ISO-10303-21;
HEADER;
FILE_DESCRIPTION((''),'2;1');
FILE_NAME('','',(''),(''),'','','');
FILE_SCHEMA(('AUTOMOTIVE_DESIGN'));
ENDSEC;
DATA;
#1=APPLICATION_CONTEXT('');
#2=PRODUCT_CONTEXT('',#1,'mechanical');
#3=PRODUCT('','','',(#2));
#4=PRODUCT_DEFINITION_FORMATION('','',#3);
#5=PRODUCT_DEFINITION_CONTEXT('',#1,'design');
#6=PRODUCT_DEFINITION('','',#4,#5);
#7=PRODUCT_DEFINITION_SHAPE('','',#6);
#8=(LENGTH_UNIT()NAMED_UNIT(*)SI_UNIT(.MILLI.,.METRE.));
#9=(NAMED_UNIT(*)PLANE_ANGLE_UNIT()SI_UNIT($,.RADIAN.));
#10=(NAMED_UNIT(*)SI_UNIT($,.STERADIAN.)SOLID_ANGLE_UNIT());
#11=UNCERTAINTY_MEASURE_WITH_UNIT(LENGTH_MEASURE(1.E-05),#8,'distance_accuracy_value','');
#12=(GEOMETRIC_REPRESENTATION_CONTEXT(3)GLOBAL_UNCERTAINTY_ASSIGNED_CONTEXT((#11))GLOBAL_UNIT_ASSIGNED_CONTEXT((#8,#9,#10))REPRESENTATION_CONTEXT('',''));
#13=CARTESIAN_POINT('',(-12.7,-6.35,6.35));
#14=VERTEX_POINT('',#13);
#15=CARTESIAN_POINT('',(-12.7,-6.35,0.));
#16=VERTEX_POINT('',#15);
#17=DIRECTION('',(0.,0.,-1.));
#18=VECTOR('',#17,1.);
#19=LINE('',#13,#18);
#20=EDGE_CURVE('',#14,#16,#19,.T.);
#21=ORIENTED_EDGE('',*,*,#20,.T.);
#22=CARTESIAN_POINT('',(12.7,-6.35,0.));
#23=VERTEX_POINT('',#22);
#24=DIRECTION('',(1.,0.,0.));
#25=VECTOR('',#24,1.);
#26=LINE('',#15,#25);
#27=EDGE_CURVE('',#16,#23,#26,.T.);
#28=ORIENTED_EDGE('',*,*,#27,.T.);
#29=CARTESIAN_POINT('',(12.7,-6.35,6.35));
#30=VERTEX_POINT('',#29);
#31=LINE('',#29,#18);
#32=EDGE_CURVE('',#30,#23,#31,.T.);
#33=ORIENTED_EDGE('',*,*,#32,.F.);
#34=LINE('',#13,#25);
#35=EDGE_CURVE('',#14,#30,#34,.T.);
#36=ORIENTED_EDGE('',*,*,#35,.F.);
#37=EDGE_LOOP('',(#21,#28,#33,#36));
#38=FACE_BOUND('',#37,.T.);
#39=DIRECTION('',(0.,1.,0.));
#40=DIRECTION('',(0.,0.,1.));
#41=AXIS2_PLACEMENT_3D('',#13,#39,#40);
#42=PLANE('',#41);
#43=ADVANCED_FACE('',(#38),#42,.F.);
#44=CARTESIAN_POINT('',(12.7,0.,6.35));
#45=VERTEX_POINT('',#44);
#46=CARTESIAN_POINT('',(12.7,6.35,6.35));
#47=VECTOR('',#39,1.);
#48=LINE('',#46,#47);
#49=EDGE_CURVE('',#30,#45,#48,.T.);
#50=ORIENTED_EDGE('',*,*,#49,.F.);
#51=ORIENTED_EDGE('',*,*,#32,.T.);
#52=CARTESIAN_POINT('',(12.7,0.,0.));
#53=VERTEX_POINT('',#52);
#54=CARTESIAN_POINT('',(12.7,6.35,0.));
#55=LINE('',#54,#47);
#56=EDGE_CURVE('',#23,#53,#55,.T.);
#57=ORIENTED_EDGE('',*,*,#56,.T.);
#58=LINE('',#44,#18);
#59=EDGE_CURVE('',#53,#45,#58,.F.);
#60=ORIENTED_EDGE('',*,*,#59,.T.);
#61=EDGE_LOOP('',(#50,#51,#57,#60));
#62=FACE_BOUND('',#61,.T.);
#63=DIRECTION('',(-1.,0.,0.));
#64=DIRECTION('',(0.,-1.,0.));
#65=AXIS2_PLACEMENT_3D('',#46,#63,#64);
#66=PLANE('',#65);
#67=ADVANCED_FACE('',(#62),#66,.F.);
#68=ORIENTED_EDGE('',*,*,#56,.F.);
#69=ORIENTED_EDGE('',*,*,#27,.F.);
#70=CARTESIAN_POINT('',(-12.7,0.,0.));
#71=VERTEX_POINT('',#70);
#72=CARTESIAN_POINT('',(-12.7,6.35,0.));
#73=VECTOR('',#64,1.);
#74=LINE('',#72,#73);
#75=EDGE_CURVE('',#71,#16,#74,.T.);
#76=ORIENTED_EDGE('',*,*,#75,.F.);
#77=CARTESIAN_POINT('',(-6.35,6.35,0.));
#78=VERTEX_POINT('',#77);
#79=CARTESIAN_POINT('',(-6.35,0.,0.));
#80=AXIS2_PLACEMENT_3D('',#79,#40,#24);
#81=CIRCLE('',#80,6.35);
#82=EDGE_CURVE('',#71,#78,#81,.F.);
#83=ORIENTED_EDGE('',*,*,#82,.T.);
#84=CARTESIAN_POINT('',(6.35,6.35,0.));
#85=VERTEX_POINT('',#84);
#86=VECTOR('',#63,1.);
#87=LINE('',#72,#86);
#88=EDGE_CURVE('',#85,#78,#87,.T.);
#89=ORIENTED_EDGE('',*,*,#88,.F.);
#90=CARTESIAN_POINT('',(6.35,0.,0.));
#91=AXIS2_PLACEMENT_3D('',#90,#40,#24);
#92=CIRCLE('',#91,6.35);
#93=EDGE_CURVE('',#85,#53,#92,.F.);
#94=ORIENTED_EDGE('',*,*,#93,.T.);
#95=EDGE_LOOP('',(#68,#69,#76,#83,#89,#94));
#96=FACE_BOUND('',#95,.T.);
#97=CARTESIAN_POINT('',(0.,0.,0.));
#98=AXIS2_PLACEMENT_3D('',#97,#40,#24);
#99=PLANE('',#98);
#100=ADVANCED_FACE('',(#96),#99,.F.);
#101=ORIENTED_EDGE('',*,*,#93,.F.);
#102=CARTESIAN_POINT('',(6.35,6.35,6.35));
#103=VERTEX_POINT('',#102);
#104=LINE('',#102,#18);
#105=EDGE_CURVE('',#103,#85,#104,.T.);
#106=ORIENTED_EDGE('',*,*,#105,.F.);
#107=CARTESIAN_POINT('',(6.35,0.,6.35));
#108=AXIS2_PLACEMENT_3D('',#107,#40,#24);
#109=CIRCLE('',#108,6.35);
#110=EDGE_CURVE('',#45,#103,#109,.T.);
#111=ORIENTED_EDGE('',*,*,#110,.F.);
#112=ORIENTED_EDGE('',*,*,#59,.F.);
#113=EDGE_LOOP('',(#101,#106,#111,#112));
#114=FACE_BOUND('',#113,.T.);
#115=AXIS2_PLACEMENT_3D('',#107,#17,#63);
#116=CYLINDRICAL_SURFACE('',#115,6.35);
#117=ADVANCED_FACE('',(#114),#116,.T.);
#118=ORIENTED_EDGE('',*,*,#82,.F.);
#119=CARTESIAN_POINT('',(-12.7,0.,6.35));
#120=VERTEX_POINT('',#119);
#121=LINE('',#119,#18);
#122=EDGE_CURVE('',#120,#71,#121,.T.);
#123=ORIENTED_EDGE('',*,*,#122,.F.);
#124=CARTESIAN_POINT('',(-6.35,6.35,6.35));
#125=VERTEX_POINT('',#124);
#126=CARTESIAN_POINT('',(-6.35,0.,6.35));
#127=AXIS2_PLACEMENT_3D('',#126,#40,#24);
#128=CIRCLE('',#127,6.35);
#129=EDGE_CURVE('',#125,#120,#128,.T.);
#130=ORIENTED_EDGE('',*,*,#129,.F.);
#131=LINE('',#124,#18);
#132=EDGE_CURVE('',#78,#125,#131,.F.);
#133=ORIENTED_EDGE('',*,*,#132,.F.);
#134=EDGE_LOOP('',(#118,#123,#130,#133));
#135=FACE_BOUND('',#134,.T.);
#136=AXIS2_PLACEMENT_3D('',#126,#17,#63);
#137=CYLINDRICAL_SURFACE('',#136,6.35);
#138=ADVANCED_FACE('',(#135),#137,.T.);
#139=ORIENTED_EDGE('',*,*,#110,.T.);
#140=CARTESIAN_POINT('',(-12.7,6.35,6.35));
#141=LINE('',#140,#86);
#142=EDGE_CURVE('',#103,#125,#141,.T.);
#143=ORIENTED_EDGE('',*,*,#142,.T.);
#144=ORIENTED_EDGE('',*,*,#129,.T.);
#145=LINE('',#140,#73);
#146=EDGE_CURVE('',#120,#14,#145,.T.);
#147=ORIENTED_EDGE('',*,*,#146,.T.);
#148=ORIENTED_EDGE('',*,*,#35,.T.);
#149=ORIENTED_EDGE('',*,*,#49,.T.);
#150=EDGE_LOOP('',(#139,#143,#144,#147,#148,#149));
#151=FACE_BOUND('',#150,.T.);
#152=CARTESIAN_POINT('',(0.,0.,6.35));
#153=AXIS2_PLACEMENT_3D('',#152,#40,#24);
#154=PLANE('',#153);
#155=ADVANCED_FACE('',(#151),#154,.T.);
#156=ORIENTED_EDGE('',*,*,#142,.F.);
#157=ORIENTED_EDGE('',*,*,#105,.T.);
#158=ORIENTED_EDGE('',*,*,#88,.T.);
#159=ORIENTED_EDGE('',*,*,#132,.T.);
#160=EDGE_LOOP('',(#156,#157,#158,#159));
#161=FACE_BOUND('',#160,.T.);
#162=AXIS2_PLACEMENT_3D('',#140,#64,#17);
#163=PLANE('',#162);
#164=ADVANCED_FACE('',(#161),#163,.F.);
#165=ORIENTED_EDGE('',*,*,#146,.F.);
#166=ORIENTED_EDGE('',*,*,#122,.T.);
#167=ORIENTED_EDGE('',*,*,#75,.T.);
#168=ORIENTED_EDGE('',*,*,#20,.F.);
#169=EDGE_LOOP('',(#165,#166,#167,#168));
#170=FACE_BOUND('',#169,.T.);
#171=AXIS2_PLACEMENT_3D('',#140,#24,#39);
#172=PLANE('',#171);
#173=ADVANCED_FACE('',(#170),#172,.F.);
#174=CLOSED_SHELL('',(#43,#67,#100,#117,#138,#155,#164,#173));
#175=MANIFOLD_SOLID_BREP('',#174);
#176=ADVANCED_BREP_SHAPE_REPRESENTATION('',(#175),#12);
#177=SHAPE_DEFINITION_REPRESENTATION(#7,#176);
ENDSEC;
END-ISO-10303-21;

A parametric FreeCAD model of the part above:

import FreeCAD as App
import Part
import Sketcher

V = App.Vector
Q = App.Units.Quantity


def edges_at(feature, points):
    """Names of the edges that pass closest to the given points."""
    edges = feature.Shape.Edges
    near = lambda p: min(range(len(edges)), key=lambda i: edges[i].distToShape(Part.Vertex(*p))[0])
    return sorted({f"Edge{near(p) + 1}" for p in points})


def add_polygon(sketch, points):
    """Adds a closed chain of lines whose ends are joined by coincident constraints."""
    first, n = sketch.GeometryCount, len(points)
    for a, b in zip(points, points[1:] + points[:1]):
        sketch.addGeometry(Part.LineSegment(App.Vector(*a, 0), App.Vector(*b, 0)), False)
    for i in range(n):
        sketch.addConstraint(Sketcher.Constraint("Coincident", first + i, 2, first + (i + 1) % n, 1))

doc = App.newDocument("Part")
body = doc.addObject("PartDesign::Body", "Body")

sketch1 = body.newObject("Sketcher::SketchObject", "Sketch")
sketch1.AttachmentSupport = (doc.getObject("XY_Plane"), [""])
sketch1.MapMode = "FlatFace"
add_polygon(sketch1, [(-13, 6), (-13, -6), (13, -6), (13, 6)])
sketch1.addConstraint(Sketcher.Constraint("Vertical", 0))
sketch1.addConstraint(Sketcher.Constraint("Horizontal", 1))
sketch1.addConstraint(Sketcher.Constraint("Vertical", 2))
sketch1.addConstraint(Sketcher.Constraint("Horizontal", 3))
sketch1.addConstraint(Sketcher.Constraint("Symmetric", 0, 2, 2, 2, -1, 1))
sketch1.addConstraint(Sketcher.Constraint("DistanceX", 1, 1, 1, 2, Q("1 in")))
sketch1.addConstraint(Sketcher.Constraint("DistanceY", 0, 2, 0, 1, Q("0.5 in")))
pad1 = body.newObject("PartDesign::Pad", "Pad")
pad1.Profile = sketch1
pad1.Length = Q("0.25 in")
doc.recompute()

fillet = body.newObject("PartDesign::Fillet", "Fillet")
fillet.Base = (pad1, edges_at(pad1, [(-12.7, 6.35, 3.175), (12.7, 6.35, 3.175)]))
fillet.Radius = Q("0.25 in")

doc.recompute()
